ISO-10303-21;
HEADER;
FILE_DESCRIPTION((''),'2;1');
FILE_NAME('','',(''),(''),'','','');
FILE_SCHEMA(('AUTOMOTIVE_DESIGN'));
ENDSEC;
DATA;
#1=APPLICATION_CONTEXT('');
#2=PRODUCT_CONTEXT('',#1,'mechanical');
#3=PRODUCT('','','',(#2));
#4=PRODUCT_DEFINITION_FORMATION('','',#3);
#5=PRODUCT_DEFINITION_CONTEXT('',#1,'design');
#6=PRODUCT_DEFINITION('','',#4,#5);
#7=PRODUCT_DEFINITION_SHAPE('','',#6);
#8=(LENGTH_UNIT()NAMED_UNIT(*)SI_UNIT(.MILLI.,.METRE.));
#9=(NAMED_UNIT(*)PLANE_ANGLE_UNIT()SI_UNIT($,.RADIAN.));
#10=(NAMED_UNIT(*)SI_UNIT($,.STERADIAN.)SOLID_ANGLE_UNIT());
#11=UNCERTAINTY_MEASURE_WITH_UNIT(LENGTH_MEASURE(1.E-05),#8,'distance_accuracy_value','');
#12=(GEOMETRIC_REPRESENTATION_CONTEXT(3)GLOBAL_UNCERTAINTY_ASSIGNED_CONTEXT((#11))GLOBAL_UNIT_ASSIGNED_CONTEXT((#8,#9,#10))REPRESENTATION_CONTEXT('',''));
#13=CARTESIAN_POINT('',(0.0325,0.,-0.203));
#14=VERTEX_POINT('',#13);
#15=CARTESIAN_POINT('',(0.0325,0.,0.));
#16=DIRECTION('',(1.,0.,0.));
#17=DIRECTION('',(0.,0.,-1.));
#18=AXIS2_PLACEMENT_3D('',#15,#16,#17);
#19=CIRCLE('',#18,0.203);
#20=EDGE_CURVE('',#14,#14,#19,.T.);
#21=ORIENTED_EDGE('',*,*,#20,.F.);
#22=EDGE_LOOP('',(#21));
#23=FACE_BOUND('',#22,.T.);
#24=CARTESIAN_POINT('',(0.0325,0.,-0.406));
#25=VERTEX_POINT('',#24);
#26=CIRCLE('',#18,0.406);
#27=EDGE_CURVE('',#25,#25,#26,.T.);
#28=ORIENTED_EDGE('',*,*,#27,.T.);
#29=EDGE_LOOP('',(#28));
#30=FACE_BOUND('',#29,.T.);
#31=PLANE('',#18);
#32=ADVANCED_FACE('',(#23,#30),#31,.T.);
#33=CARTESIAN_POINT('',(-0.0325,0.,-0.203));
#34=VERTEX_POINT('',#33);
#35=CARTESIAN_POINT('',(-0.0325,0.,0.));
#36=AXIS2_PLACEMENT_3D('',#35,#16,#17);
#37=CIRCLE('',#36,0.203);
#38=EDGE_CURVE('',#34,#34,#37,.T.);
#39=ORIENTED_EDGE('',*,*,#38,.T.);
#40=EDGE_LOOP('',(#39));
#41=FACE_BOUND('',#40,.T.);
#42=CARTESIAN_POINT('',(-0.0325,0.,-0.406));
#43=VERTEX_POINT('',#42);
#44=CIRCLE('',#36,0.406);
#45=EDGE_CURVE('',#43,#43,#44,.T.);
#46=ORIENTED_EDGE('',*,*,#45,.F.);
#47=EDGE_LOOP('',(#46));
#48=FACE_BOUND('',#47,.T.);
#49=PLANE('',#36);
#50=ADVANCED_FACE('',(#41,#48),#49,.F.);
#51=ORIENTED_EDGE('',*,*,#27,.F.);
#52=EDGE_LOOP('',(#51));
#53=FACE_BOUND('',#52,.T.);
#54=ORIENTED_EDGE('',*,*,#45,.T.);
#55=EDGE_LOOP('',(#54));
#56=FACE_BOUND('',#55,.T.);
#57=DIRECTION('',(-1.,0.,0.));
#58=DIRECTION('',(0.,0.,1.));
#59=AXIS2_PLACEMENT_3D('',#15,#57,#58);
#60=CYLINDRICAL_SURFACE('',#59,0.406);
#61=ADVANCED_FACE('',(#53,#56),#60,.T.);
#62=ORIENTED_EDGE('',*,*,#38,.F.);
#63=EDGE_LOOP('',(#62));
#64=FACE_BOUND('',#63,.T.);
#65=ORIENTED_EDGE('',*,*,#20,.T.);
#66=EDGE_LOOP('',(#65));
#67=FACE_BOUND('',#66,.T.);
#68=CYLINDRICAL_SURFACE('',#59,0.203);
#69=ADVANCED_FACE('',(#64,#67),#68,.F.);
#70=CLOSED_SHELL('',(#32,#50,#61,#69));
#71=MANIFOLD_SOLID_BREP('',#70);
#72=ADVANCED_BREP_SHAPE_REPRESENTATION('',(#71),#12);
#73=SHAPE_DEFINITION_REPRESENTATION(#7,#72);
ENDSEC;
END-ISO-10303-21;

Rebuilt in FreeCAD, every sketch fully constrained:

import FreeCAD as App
import Part
import Sketcher
from FreeCAD import Vector

doc = App.newDocument("Part")
body = doc.addObject("PartDesign::Body", "Body")

# Sketch on YZ plane
sketch1 = body.newObject("Sketcher::SketchObject", "Sketch")
sketch1.AttachmentSupport = (doc.getObject("YZ_Plane"), [""])
sketch1.MapMode = "FlatFace"
sketch1.addGeometry([
    Part.Circle(Vector(0, 0, 0), Vector(0, 0, 1), 0.406),
    Part.Circle(Vector(0, 0, 0), Vector(0, 0, 1), 0.203),
], False)
sketch1.addConstraint([
    Sketcher.Constraint("Coincident", 0, 3, -1, 1),
    Sketcher.Constraint("Coincident", 1, 3, -1, 1),
    Sketcher.Constraint("Diameter", 0, 0.812),
    Sketcher.Constraint("Diameter", 1, 0.406),
])
pad1 = body.newObject("PartDesign::Pad", "Pad")
pad1.Profile = sketch1
pad1.Length = 0.065
pad1.Midplane = True

doc.recompute()
